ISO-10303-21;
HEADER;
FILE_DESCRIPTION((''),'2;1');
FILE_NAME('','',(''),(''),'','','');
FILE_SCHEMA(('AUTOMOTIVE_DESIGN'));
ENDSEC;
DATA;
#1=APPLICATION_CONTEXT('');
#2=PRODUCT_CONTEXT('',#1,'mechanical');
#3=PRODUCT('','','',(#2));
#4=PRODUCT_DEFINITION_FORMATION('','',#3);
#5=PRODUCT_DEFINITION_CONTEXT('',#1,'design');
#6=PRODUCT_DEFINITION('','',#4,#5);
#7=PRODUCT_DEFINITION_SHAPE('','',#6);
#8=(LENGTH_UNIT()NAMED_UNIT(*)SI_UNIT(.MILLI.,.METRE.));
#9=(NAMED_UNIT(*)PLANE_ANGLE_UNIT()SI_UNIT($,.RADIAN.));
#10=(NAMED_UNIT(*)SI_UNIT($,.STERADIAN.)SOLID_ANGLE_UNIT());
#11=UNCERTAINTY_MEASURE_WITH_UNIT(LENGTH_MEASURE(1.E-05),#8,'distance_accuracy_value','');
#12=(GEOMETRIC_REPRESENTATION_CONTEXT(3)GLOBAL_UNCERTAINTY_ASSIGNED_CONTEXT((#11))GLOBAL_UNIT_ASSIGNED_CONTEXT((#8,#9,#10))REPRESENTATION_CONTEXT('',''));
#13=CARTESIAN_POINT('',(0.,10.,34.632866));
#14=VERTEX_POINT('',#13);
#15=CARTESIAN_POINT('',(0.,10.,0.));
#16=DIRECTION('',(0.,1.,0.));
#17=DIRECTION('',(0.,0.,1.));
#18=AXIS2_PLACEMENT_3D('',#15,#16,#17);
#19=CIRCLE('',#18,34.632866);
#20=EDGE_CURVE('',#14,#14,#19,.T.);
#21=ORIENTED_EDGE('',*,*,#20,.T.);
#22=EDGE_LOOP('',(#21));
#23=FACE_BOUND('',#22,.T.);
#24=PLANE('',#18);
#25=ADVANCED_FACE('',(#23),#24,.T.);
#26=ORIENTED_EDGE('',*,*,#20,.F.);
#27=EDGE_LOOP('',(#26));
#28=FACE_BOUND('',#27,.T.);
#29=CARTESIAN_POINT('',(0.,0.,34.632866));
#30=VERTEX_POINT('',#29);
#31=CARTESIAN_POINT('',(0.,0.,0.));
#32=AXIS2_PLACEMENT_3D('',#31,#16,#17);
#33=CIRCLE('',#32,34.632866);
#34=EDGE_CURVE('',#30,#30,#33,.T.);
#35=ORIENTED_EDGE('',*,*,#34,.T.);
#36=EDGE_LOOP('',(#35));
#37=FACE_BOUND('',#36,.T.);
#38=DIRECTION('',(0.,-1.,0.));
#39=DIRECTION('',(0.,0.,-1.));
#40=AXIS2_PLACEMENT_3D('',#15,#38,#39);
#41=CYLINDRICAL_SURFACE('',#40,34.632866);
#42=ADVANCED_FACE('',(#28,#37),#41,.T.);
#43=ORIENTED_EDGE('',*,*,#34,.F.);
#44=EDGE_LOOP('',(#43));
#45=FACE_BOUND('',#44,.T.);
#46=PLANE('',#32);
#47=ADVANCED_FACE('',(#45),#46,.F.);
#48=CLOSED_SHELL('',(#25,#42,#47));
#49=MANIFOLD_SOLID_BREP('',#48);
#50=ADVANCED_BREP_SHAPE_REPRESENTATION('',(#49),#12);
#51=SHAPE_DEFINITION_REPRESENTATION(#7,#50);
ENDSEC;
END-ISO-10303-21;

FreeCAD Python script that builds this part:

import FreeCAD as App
import Part
import Sketcher
Q = App.Units.Quantity

doc = App.newDocument("Part")
body = doc.addObject("PartDesign::Body", "Body")

# Sketch on XZ plane
sketch1 = doc.addObject("Sketcher::SketchObject", "Sketch")
body.addObject(sketch1)
sketch1.AttachmentSupport = (doc.XZ_Plane, [""])
sketch1.MapMode = "FlatFace"
sketch1.addGeometry(Part.Circle(App.Vector(0, 0, 0), App.Vector(0, 0, 1), 34.632866), False)
sketch1.addConstraint([
    Sketcher.Constraint("Coincident", 0, 3, -1, 1),
    Sketcher.Constraint("Diameter", 0, Q("69.265732 mm")),
])
pad1 = doc.addObject("PartDesign::Pad", "Pad")
body.addObject(pad1)
pad1.Profile = sketch1
pad1.Length = 10
pad1.Reversed = True

doc.recompute()
